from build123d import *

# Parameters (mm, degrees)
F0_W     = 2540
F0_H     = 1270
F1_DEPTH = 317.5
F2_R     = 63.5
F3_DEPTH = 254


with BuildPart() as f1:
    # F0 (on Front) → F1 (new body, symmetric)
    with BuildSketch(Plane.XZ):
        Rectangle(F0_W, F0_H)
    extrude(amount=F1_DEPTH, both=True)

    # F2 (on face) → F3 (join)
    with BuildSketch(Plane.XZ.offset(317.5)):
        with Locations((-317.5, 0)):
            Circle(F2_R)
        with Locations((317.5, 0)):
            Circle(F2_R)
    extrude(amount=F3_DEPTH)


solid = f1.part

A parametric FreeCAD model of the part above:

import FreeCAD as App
import Part
import Sketcher

V = App.Vector
Q = App.Units.Quantity

doc = App.newDocument("Part")
body = doc.addObject("PartDesign::Body", "Body")

sketch1 = body.newObject("Sketcher::SketchObject", "Sketch")
sketch1.AttachmentSupport = (doc.getObject("XZ_Plane"), [""])
sketch1.MapMode = "FlatFace"
sketch1.addGeometry([
    Part.LineSegment(V(-1270, 635, 0), V(-1270, -635, 0)),
    Part.LineSegment(V(-1270, -635, 0), V(1270, -635, 0)),
    Part.LineSegment(V(1270, -635, 0), V(1270, 635, 0)),
    Part.LineSegment(V(1270, 635, 0), V(-1270, 635, 0)),
], False)
sketch1.addConstraint([
    Sketcher.Constraint("Coincident", 0, 2, 1, 1),
    Sketcher.Constraint("Coincident", 1, 2, 2, 1),
    Sketcher.Constraint("Coincident", 2, 2, 3, 1),
    Sketcher.Constraint("Coincident", 3, 2, 0, 1),
    Sketcher.Constraint("Vertical", 0),
    Sketcher.Constraint("Horizontal", 1),
    Sketcher.Constraint("Vertical", 2),
    Sketcher.Constraint("Horizontal", 3),
    Sketcher.Constraint("Symmetric", 0, 2, 2, 2, -1, 1),
    Sketcher.Constraint("DistanceX", 1, 1, 1, 2, Q("100 in")),
    Sketcher.Constraint("DistanceY", 0, 2, 0, 1, Q("50 in")),
])
pad1 = body.newObject("PartDesign::Pad", "Pad")
pad1.Profile = sketch1
pad1.Length = Q("25 in")
pad1.Midplane = True

sketch2 = body.newObject("Sketcher::SketchObject", "Sketch001")
sketch2.AttachmentSupport = (doc.getObject("XZ_Plane"), [""])
sketch2.MapMode = "FlatFace"
sketch2.AttachmentOffset = App.Placement(V(0, 0, 12.5 * 25.4), App.Rotation())
sketch2.addGeometry([
    Part.Circle(V(-317.5, 0, 0), V(0, 0, 1), 63.5),
    Part.Circle(V(317.5, 0, 0), V(0, 0, 1), 63.5),
], False)
sketch2.addConstraint([
    Sketcher.Constraint("Equal", 0, 1),
    Sketcher.Constraint("Symmetric", 0, 3, 1, 3, -1, 1),
    Sketcher.Constraint("PointOnObject", 0, 3, -1),
    Sketcher.Constraint("Diameter", 0, Q("5 in")),
    Sketcher.Constraint("DistanceX", 0, 3, 1, 3, Q("25 in")),
])
pad2 = body.newObject("PartDesign::Pad", "Pad001")
pad2.Profile = sketch2
pad2.Length = Q("10 in")

doc.recompute()
